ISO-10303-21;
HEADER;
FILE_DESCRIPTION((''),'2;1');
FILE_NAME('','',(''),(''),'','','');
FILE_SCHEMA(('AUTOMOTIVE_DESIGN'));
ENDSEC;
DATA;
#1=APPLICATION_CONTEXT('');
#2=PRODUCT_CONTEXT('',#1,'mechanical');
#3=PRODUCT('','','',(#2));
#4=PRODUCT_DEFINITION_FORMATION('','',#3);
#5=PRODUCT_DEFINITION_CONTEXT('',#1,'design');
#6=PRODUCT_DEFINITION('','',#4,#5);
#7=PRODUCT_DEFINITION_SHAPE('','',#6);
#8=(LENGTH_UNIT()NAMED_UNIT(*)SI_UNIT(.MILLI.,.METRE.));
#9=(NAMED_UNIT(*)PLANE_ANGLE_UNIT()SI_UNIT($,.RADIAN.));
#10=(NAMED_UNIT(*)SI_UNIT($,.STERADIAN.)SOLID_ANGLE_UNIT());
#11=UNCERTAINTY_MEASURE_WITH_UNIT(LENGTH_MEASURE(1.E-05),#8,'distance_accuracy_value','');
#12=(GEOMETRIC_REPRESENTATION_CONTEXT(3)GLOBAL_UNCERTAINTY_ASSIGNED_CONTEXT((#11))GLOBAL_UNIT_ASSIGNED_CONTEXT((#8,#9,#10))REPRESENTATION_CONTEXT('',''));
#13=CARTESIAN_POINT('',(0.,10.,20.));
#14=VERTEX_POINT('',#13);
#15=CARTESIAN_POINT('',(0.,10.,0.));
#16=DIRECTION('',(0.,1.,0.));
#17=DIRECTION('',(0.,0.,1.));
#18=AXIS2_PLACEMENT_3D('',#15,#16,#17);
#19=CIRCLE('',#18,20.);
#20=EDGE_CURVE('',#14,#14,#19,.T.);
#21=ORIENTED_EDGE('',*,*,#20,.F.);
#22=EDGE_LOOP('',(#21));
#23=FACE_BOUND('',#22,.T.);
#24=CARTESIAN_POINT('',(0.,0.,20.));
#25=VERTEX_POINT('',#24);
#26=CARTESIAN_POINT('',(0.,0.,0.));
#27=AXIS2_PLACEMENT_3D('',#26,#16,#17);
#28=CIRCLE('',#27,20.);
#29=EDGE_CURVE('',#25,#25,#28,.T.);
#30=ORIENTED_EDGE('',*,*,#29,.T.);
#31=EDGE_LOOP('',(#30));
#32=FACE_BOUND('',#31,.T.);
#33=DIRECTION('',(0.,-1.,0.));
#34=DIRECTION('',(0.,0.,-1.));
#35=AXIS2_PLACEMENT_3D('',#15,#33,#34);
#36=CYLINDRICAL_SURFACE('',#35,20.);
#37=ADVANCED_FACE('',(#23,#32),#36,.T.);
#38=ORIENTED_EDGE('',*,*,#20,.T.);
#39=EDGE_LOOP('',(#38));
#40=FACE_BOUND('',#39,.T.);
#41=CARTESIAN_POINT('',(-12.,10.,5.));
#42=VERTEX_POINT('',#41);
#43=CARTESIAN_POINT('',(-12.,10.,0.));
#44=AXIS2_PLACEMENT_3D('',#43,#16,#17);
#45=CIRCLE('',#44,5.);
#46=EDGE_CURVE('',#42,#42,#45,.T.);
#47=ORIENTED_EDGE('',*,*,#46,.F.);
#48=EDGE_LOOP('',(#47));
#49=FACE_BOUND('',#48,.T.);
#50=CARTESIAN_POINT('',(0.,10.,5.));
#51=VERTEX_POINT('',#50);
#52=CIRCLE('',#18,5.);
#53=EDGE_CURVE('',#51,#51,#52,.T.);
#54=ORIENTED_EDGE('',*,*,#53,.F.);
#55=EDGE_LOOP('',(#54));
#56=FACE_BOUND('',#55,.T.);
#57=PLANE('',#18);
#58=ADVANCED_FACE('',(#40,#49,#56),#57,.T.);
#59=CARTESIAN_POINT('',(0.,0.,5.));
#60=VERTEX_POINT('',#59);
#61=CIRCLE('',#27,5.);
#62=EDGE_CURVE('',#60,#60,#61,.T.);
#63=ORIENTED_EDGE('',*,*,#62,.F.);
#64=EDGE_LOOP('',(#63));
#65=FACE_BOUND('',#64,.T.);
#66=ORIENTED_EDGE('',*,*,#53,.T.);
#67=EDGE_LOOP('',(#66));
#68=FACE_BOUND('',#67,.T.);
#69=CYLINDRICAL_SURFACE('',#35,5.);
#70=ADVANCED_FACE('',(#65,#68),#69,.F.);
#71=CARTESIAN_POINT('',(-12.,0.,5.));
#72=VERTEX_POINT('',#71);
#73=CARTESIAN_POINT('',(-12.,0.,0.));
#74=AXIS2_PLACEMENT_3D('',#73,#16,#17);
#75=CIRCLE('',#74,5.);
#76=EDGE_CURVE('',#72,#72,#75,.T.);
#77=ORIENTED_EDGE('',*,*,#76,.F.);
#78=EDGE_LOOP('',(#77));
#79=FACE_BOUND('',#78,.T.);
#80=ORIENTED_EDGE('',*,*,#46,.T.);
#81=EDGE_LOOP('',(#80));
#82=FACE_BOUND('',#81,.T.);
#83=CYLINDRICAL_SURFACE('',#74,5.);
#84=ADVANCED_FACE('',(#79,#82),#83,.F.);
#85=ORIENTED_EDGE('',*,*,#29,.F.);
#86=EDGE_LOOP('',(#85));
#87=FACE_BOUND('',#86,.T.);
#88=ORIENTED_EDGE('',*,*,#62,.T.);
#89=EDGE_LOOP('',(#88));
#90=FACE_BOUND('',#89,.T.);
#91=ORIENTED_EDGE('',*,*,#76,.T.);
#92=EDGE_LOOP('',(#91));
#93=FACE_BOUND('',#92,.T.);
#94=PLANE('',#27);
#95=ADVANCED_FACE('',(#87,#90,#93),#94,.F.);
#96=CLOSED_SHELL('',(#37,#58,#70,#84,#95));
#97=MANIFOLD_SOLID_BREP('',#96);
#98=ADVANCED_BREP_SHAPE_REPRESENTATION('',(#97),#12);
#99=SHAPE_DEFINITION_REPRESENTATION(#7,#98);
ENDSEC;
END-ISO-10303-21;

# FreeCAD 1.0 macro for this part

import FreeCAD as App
import Part
import Sketcher
Q = App.Units.Quantity

doc = App.newDocument("Part")
body = doc.addObject("PartDesign::Body", "Body")

# Sketch on XZ plane
sketch1 = body.newObject("Sketcher::SketchObject", "Sketch")
sketch1.AttachmentSupport = (doc.getObject("XZ_Plane"), [""])
sketch1.MapMode = "FlatFace"
sketch1.addGeometry([
    Part.Circle(App.Vector(0, 0, 0), App.Vector(0, 0, 1), 20),
    Part.Circle(App.Vector(0, 0, 0), App.Vector(0, 0, 1), 5),
], False)
sketch1.addConstraint([
    Sketcher.Constraint("Coincident", 0, 3, -1, 1),
    Sketcher.Constraint("Coincident", 1, 3, -1, 1),
    Sketcher.Constraint("Diameter", 0, Q("40 mm")),
    Sketcher.Constraint("Diameter", 1, Q("10 mm")),
])
pad1 = body.newObject("PartDesign::Pad", "Pad")
pad1.Profile = sketch1
pad1.Length = 10
pad1.Reversed = True

# Sketch on XZ plane
sketch2 = body.newObject("Sketcher::SketchObject", "Sketch001")
sketch2.AttachmentSupport = (doc.getObject("XZ_Plane"), [""])
sketch2.MapMode = "FlatFace"
sketch2.AttachmentOffset = App.Placement(App.Vector(0, 0, -10), App.Rotation())
sketch2.addGeometry(Part.Circle(App.Vector(-12, 0, 0), App.Vector(0, 0, 1), 5), False)
sketch2.addConstraint([
    Sketcher.Constraint("PointOnObject", 0, 3, -1),
    Sketcher.Constraint("Diameter", 0, Q("10 mm")),
    Sketcher.Constraint("DistanceX", 0, 3, -1, 1, Q("12 mm")),
])
pocket1 = body.newObject("PartDesign::Pocket", "Pocket")
pocket1.Profile = sketch2
pocket1.Type = "ThroughAll"
pocket1.Reversed = True

doc.recompute()
